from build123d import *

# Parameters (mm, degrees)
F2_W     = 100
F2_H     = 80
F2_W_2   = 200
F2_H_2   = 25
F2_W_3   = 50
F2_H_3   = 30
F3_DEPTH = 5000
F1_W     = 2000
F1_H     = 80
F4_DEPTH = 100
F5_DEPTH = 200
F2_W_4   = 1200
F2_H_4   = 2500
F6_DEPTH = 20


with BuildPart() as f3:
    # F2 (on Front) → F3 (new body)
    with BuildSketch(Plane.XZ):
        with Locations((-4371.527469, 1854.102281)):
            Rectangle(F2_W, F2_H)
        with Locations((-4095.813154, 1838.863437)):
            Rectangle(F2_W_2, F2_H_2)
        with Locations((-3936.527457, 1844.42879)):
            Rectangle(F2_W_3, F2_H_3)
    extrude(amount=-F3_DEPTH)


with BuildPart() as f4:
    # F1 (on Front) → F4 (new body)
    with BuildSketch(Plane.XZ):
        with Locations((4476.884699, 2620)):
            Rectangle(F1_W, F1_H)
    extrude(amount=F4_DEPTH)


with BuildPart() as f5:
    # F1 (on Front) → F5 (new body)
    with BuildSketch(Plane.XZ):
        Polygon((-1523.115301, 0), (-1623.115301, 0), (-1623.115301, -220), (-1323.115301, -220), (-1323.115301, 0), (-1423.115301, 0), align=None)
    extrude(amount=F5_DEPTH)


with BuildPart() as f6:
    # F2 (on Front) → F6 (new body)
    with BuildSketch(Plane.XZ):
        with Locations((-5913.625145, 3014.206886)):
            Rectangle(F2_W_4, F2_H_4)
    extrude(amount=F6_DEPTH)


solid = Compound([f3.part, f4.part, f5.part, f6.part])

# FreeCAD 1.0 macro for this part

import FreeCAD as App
import Part
import Sketcher

V = App.Vector

doc = App.newDocument("Part")
body = doc.addObject("PartDesign::Body", "Body")
body.AllowCompound = True

# Sketch on XZ plane
sketch1 = body.newObject("Sketcher::SketchObject", "Sketch")
sketch1.AttachmentSupport = (doc.getObject("XZ_Plane"), [""])
sketch1.MapMode = "FlatFace"
sketch1.addGeometry([
    Part.LineSegment(V(-4421.527469, 1894.102281, 0), V(-4421.527469, 1814.102281, 0)),  # 0
    Part.LineSegment(V(-4421.527469, 1814.102281, 0), V(-4321.527469, 1814.102281, 0)),  # 1
    Part.LineSegment(V(-4321.527469, 1814.102281, 0), V(-4321.527469, 1894.102281, 0)),  # 2
    Part.LineSegment(V(-4321.527469, 1894.102281, 0), V(-4421.527469, 1894.102281, 0)),  # 3
    Part.LineSegment(V(-4195.813154, 1851.363437, 0), V(-4195.813154, 1826.363437, 0)),  # 4
    Part.LineSegment(V(-4195.813154, 1826.363437, 0), V(-3995.813154, 1826.363437, 0)),  # 5
    Part.LineSegment(V(-3995.813154, 1826.363437, 0), V(-3995.813154, 1851.363437, 0)),  # 6
    Part.LineSegment(V(-3995.813154, 1851.363437, 0), V(-4195.813154, 1851.363437, 0)),  # 7
    Part.LineSegment(V(-3961.527457, 1859.42879, 0), V(-3961.527457, 1829.42879, 0)),  # 8
    Part.LineSegment(V(-3961.527457, 1829.42879, 0), V(-3911.527457, 1829.42879, 0)),  # 9
    Part.LineSegment(V(-3911.527457, 1829.42879, 0), V(-3911.527457, 1859.42879, 0)),  # 10
    Part.LineSegment(V(-3911.527457, 1859.42879, 0), V(-3961.527457, 1859.42879, 0)),  # 11
], False)
sketch1.addConstraint([
    Sketcher.Constraint("Coincident", 0, 2, 1, 1),
    Sketcher.Constraint("Coincident", 1, 2, 2, 1),
    Sketcher.Constraint("Coincident", 2, 2, 3, 1),
    Sketcher.Constraint("Coincident", 3, 2, 0, 1),
    Sketcher.Constraint("Coincident", 4, 2, 5, 1),
    Sketcher.Constraint("Coincident", 5, 2, 6, 1),
    Sketcher.Constraint("Coincident", 6, 2, 7, 1),
    Sketcher.Constraint("Coincident", 7, 2, 4, 1),
    Sketcher.Constraint("Coincident", 8, 2, 9, 1),
    Sketcher.Constraint("Coincident", 9, 2, 10, 1),
    Sketcher.Constraint("Coincident", 10, 2, 11, 1),
    Sketcher.Constraint("Coincident", 11, 2, 8, 1),
    Sketcher.Constraint("Vertical", 0),
    Sketcher.Constraint("Horizontal", 1),
    Sketcher.Constraint("Vertical", 2),
    Sketcher.Constraint("Horizontal", 3),
    Sketcher.Constraint("Vertical", 4),
    Sketcher.Constraint("Horizontal", 5),
    Sketcher.Constraint("Vertical", 6),
    Sketcher.Constraint("Horizontal", 7),
    Sketcher.Constraint("Vertical", 8),
    Sketcher.Constraint("Horizontal", 9),
    Sketcher.Constraint("Vertical", 10),
    Sketcher.Constraint("Horizontal", 11),
    Sketcher.Constraint("DistanceX", 1, 1, 1, 2, 100.0),
    Sketcher.Constraint("DistanceX", 5, 1, 5, 2, 200.0),
    Sketcher.Constraint("DistanceX", 9, 1, 9, 2, 50.0),
    Sketcher.Constraint("DistanceY", 0, 2, 0, 1, 80.0),
    Sketcher.Constraint("DistanceY", 4, 2, 4, 1, 25.0),
    Sketcher.Constraint("DistanceY", 8, 2, 8, 1, 30.0),
    Sketcher.Constraint("DistanceX", 0, 2, -1, 1, 4421.527469),
    Sketcher.Constraint("DistanceY", -1, 1, 0, 2, 1814.102281),
    Sketcher.Constraint("DistanceY", -1, 1, 8, 2, 1829.42879),
    Sketcher.Constraint("DistanceX", 1, 2, 8, 2, 360.000012),
    Sketcher.Constraint("DistanceX", 4, 2, -1, 1, 4195.813154),
    Sketcher.Constraint("DistanceY", -1, 1, 4, 2, 1826.363437),
])
pad1 = body.newObject("PartDesign::Pad", "Pad")
pad1.Profile = sketch1
pad1.Length = 5000
pad1.Reversed = True
body2 = doc.addObject("PartDesign::Body", "Body001")

# Sketch on XZ plane
sketch2 = body2.newObject("Sketcher::SketchObject", "Sketch001")
sketch2.AttachmentSupport = (doc.getObject("XZ_Plane001"), [""])
sketch2.MapMode = "FlatFace"
sketch2.addGeometry([
    Part.LineSegment(V(3476.884699, 2660, 0), V(3476.884699, 2580, 0)),
    Part.LineSegment(V(3476.884699, 2580, 0), V(5476.884699, 2580, 0)),
    Part.LineSegment(V(5476.884699, 2580, 0), V(5476.884699, 2660, 0)),
    Part.LineSegment(V(5476.884699, 2660, 0), V(3476.884699, 2660, 0)),
], False)
sketch2.addConstraint([
    Sketcher.Constraint("Coincident", 0, 2, 1, 1),
    Sketcher.Constraint("Coincident", 1, 2, 2, 1),
    Sketcher.Constraint("Coincident", 2, 2, 3, 1),
    Sketcher.Constraint("Coincident", 3, 2, 0, 1),
    Sketcher.Constraint("Vertical", 0),
    Sketcher.Constraint("Horizontal", 1),
    Sketcher.Constraint("Vertical", 2),
    Sketcher.Constraint("Horizontal", 3),
    Sketcher.Constraint("DistanceX", 1, 1, 1, 2, 2000.0),
    Sketcher.Constraint("DistanceY", 0, 2, 0, 1, 80.0),
    Sketcher.Constraint("DistanceY", -1, 1, 0, 2, 2580.0),
    Sketcher.Constraint("DistanceX", -1, 1, 0, 2, 3476.884699),
])
pad2 = body2.newObject("PartDesign::Pad", "Pad001")
pad2.Profile = sketch2
pad2.Length = 100
body3 = doc.addObject("PartDesign::Body", "Body002")

# Sketch on XZ plane
sketch3 = body3.newObject("Sketcher::SketchObject", "Sketch002")
sketch3.AttachmentSupport = (doc.getObject("XZ_Plane002"), [""])
sketch3.MapMode = "FlatFace"
sketch3.addGeometry([
    Part.LineSegment(V(-1623.115301, 0, 0), V(-1623.115301, -220, 0)),
    Part.LineSegment(V(-1623.115301, -220, 0), V(-1323.115301, -220, 0)),
    Part.LineSegment(V(-1323.115301, -220, 0), V(-1323.115301, 0, 0)),
    Part.LineSegment(V(-1323.115301, 0, 0), V(-1623.115301, 0, 0)),
], False)
sketch3.addConstraint([
    Sketcher.Constraint("Coincident", 0, 2, 1, 1),
    Sketcher.Constraint("Coincident", 1, 2, 2, 1),
    Sketcher.Constraint("Coincident", 2, 2, 3, 1),
    Sketcher.Constraint("Coincident", 3, 2, 0, 1),
    Sketcher.Constraint("Vertical", 0),
    Sketcher.Constraint("Horizontal", 1),
    Sketcher.Constraint("Vertical", 2),
    Sketcher.Constraint("Horizontal", 3),
    Sketcher.Constraint("PointOnObject", 2, 2, -1),
    Sketcher.Constraint("DistanceX", 1, 1, 1, 2, 300.0),
    Sketcher.Constraint("DistanceY", 0, 2, 0, 1, 220.0),
    Sketcher.Constraint("DistanceX", 0, 2, -1, 1, 1623.115301),
])
pad3 = body3.newObject("PartDesign::Pad", "Pad002")
pad3.Profile = sketch3
pad3.Length = 200
body4 = doc.addObject("PartDesign::Body", "Body003")

# Sketch on XZ plane
sketch4 = body4.newObject("Sketcher::SketchObject", "Sketch003")
sketch4.AttachmentSupport = (doc.getObject("XZ_Plane003"), [""])
sketch4.MapMode = "FlatFace"
sketch4.addGeometry([
    Part.LineSegment(V(-6513.625145, 4264.206886, 0), V(-6513.625145, 1764.206886, 0)),
    Part.LineSegment(V(-6513.625145, 1764.206886, 0), V(-5313.625145, 1764.206886, 0)),
    Part.LineSegment(V(-5313.625145, 1764.206886, 0), V(-5313.625145, 4264.206886, 0)),
    Part.LineSegment(V(-5313.625145, 4264.206886, 0), V(-6513.625145, 4264.206886, 0)),
], False)
sketch4.addConstraint([
    Sketcher.Constraint("Coincident", 0, 2, 1, 1),
    Sketcher.Constraint("Coincident", 1, 2, 2, 1),
    Sketcher.Constraint("Coincident", 2, 2, 3, 1),
    Sketcher.Constraint("Coincident", 3, 2, 0, 1),
    Sketcher.Constraint("Vertical", 0),
    Sketcher.Constraint("Horizontal", 1),
    Sketcher.Constraint("Vertical", 2),
    Sketcher.Constraint("Horizontal", 3),
    Sketcher.Constraint("DistanceX", 1, 1, 1, 2, 1200.0),
    Sketcher.Constraint("DistanceY", 0, 2, 0, 1, 2500.0),
    Sketcher.Constraint("DistanceX", 0, 2, -1, 1, 6513.625145),
    Sketcher.Constraint("DistanceY", -1, 1, 0, 2, 1764.206886),
])
pad4 = body4.newObject("PartDesign::Pad", "Pad003")
pad4.Profile = sketch4
pad4.Length = 20

doc.recompute()
